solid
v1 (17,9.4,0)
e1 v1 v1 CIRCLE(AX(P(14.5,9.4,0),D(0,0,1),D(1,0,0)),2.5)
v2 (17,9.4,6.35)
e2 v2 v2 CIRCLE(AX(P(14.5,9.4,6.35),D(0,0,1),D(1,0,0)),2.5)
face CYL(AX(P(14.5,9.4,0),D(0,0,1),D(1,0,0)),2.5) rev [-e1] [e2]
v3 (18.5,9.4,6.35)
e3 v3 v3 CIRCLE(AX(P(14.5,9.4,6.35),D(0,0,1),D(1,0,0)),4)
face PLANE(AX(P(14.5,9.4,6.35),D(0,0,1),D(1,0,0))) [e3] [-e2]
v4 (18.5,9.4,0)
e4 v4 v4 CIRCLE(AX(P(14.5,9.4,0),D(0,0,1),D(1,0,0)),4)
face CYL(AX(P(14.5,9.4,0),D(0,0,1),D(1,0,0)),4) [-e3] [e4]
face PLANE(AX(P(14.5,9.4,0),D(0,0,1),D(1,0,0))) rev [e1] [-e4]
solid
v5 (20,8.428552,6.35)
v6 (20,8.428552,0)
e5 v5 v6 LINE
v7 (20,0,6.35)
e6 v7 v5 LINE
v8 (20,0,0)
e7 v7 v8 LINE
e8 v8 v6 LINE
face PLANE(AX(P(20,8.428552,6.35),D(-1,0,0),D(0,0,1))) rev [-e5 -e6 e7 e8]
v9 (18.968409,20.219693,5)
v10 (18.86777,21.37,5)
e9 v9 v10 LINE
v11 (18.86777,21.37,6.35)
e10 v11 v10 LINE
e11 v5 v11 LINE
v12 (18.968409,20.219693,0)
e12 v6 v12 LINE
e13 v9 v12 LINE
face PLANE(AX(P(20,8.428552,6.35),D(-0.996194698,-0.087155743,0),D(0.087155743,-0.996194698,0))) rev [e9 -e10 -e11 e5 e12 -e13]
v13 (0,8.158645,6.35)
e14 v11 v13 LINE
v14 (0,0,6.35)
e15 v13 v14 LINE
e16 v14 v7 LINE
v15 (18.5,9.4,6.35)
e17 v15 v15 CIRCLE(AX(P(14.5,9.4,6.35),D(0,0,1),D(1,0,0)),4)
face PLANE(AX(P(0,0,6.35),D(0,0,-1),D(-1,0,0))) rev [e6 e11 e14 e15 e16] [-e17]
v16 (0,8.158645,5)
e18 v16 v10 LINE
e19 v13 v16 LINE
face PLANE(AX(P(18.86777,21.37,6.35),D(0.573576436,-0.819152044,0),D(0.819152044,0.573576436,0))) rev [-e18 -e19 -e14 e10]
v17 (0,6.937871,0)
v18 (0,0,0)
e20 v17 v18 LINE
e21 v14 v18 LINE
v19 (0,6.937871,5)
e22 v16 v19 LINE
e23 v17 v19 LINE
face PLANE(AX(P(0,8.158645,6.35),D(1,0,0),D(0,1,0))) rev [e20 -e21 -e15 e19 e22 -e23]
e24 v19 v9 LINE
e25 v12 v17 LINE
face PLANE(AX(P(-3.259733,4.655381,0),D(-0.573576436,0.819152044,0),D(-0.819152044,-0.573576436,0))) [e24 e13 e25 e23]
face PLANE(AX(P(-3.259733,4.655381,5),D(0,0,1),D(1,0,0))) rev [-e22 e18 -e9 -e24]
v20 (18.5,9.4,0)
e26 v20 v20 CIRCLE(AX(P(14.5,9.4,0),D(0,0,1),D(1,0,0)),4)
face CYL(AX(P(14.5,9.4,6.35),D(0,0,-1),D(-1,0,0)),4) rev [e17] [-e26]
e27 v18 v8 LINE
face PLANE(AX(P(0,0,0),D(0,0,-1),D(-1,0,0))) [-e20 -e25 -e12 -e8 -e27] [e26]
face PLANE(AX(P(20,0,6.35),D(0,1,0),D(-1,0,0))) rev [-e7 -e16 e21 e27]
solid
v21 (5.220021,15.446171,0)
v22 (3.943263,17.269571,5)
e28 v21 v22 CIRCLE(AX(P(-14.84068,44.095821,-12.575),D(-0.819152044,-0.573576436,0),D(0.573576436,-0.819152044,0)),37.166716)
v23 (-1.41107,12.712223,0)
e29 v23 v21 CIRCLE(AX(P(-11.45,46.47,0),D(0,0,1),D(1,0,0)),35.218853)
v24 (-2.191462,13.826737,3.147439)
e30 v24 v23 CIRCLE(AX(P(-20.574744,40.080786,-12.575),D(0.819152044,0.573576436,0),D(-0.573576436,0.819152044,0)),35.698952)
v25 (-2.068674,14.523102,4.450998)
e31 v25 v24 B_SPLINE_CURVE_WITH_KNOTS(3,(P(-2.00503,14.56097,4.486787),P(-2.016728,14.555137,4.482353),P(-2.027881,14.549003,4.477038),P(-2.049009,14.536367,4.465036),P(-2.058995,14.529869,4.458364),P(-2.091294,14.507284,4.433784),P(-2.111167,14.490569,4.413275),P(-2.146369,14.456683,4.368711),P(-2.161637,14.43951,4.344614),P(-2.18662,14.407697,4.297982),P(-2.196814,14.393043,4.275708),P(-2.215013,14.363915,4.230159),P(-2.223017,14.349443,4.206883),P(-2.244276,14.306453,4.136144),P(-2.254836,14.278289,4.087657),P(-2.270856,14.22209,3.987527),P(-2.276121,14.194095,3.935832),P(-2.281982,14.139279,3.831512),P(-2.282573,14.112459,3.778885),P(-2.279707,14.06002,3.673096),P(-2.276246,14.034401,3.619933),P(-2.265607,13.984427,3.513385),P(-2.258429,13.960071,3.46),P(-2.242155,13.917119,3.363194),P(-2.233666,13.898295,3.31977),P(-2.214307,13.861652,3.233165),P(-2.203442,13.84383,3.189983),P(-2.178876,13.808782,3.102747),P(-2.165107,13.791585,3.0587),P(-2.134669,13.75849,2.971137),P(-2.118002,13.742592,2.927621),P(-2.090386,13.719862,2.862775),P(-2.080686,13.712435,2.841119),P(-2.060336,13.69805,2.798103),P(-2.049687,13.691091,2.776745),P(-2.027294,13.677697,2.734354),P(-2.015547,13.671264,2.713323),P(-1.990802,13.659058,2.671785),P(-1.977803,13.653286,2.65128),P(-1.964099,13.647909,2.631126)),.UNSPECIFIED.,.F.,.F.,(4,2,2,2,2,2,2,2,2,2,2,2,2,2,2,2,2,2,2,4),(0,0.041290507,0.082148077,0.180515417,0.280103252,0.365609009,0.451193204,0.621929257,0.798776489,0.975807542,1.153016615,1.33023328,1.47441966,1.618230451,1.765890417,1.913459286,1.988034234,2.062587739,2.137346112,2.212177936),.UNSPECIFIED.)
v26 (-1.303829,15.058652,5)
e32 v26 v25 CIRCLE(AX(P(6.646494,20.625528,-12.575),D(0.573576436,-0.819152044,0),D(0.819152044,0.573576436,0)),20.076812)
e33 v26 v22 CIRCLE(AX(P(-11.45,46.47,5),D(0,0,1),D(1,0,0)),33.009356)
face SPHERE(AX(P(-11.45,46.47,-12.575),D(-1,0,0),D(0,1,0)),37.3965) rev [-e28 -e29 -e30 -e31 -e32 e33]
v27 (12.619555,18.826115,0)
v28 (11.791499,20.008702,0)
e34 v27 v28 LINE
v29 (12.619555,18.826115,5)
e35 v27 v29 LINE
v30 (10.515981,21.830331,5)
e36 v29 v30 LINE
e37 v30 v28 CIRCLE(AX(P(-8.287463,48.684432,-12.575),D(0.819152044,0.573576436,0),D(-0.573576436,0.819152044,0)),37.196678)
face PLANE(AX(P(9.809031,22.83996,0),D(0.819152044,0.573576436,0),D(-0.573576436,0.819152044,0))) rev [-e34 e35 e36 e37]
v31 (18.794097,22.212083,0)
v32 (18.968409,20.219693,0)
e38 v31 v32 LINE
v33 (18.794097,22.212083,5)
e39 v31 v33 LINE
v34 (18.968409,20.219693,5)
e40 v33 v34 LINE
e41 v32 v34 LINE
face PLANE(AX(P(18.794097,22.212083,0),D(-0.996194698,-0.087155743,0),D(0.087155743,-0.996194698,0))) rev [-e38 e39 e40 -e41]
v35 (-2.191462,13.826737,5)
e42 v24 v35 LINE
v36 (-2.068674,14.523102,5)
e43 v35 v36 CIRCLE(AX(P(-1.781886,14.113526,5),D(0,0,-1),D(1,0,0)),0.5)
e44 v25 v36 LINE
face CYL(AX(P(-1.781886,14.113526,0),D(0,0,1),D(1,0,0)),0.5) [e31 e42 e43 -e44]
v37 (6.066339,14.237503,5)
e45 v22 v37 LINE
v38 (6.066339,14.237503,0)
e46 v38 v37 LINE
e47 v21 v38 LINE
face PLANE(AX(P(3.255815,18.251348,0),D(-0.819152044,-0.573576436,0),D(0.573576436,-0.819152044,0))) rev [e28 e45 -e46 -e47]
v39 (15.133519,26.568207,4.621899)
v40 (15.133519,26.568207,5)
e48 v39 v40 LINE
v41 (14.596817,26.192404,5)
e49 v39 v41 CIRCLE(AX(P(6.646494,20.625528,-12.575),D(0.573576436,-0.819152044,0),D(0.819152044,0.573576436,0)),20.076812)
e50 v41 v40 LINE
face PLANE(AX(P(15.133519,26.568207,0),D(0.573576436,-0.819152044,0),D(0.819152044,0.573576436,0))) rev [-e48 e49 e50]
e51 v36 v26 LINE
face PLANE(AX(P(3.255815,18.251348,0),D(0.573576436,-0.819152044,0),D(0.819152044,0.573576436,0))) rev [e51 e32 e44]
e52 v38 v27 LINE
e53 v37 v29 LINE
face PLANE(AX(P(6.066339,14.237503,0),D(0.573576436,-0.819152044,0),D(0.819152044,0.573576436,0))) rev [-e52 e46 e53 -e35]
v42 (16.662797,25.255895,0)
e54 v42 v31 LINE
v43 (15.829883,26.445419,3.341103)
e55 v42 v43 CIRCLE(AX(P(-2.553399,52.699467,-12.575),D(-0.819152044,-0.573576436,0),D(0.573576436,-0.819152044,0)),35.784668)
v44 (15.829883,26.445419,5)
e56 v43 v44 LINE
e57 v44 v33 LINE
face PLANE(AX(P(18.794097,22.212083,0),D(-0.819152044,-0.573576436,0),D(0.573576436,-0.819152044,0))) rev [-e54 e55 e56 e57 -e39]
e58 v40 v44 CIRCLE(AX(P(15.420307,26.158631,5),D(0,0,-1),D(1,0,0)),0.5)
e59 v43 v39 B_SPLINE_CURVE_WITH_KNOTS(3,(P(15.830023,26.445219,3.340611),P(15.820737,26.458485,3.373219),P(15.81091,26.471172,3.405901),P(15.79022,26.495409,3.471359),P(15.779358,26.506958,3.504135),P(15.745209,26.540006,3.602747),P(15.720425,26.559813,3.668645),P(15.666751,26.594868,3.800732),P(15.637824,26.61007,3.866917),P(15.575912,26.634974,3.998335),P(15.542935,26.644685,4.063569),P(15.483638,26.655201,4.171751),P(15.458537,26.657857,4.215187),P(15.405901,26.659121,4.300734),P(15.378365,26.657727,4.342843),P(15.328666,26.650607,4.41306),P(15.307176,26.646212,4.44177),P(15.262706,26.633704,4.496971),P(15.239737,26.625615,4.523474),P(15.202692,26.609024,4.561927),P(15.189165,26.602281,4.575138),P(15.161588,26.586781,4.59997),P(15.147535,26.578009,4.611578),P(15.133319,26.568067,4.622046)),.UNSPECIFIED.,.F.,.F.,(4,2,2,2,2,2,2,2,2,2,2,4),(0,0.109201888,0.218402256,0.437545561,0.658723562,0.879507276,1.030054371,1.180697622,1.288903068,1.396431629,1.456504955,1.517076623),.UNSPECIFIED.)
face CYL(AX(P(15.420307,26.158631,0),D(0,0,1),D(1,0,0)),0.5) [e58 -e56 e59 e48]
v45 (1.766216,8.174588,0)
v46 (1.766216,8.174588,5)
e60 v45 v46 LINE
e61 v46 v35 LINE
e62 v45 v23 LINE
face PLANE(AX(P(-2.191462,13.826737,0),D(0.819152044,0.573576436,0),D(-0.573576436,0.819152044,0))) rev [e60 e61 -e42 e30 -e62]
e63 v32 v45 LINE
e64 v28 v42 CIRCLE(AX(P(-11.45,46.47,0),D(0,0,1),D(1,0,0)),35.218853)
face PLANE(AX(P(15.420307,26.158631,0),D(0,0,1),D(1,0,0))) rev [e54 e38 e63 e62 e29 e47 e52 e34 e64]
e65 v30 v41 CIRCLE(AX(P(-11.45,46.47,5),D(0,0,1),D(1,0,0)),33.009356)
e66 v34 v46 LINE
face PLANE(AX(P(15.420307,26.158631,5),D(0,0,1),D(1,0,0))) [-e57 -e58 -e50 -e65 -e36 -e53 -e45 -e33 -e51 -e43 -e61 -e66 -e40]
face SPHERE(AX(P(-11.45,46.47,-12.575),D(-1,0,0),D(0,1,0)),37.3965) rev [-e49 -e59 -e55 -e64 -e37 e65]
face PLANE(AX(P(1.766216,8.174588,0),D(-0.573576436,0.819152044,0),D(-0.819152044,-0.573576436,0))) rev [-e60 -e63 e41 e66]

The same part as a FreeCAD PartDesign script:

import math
import FreeCAD as App
import Part
import Sketcher

V = App.Vector
Q = App.Units.Quantity


def add_polygon(sketch, points):
    """Adds a closed chain of lines whose ends are joined by coincident constraints."""
    first, n = sketch.GeometryCount, len(points)
    for a, b in zip(points, points[1:] + points[:1]):
        sketch.addGeometry(Part.LineSegment(App.Vector(*a, 0), App.Vector(*b, 0)), False)
    for i in range(n):
        sketch.addConstraint(Sketcher.Constraint("Coincident", first + i, 2, first + (i + 1) % n, 1))

doc = App.newDocument("Part")
body = doc.addObject("PartDesign::Body", "Body")

# Sketch on XY plane
sketch1 = body.newObject("Sketcher::SketchObject", "Sketch")
sketch1.AttachmentSupport = (doc.getObject("XY_Plane"), [""])
sketch1.MapMode = "FlatFace"
add_polygon(sketch1, [(20, 8.4), (18.9, 21.4), (0, 8.2), (0, 0), (20, 0)])  # lines 0-4
sketch1.addGeometry(Part.Circle(V(14.5, 9.4, 0), V(0, 0, 1), 4), False)  # 5
sketch1.addConstraint([
    Sketcher.Constraint("Vertical", 2),
    Sketcher.Constraint("Horizontal", 3),
    Sketcher.Constraint("Vertical", 4),
    Sketcher.Constraint("Coincident", 2, 2, -1, 1),
    Sketcher.Constraint("Diameter", 5, 8.0),
    Sketcher.Constraint("DistanceX", 3, 1, 3, 2, 20.0),
    Sketcher.Constraint("Angle", 0, Q("95 deg")),
    Sketcher.Constraint("Angle", 1, Q("-145 deg")),
    Sketcher.Constraint("DistanceX", -1, 1, 5, 3, 14.5),
    Sketcher.Constraint("DistanceY", -1, 1, 5, 3, 9.4),
    Sketcher.Constraint("DistanceY", -1, 1, 0, 2, 21.37),
    Sketcher.Constraint("Distance", 0, 12.990882),
])
pad1 = body.newObject("PartDesign::Pad", "Pad")
pad1.Profile = sketch1
pad1.Length = 6.35

# Sketch on an angled plane
sketch2 = body.newObject("Sketcher::SketchObject", "Sketch001")
sketch2.Placement = App.Placement(V(-3.833309, 5.474533, 0), App.Rotation(V(0.819152044, 0.573576436, 0), V(0, 0, -0.999999999), V(-0.573576436, 0.819152044, 0), "ZXY"))
add_polygon(sketch2, [(0, 0), (0, -5), (27.7, -5), (27.7, 0)])  # lines 0-3
sketch2.addConstraint([
    Sketcher.Constraint("Vertical", 0),
    Sketcher.Constraint("Horizontal", 1),
    Sketcher.Constraint("Vertical", 2),
    Sketcher.Constraint("Horizontal", 3),
    Sketcher.Constraint("Coincident", 3, 2, -1, 1),
    Sketcher.Constraint("DistanceY", 0, 2, 0, 1, 5.0),
    Sketcher.Constraint("DistanceX", 1, 1, 1, 2, 27.712901),
])
pocket1 = body.newObject("PartDesign::Pocket", "Pocket")
pocket1.Profile = sketch2
pocket1.Length = 1
body2 = doc.addObject("PartDesign::Body", "Body001")

# Sketch on XY plane
sketch3 = body2.newObject("Sketcher::SketchObject", "Sketch002")
sketch3.AttachmentSupport = (doc.getObject("XY_Plane001"), [""])
sketch3.MapMode = "FlatFace"
sketch3.AttachmentOffset = App.Placement(V(0, 0, 5), App.Rotation())
sketch3.addGeometry([
    Part.LineSegment(V(18.79, 22.21, 0), V(18.97, 20.22, 0)),  # 0
    Part.LineSegment(V(18.97, 20.22, 0), V(1.77, 8.17, 0)),  # 1
    Part.LineSegment(V(1.77, 8.17, 0), V(-2.19, 13.83, 0)),  # 2
    Part.ArcOfCircle(Part.Circle(V(-1.78, 14.11, 0), V(0, 0, 1), 0.5), math.radians(125), math.radians(215)),  # 3
    Part.LineSegment(V(-2.07, 14.52, 0), V(3.26, 18.25, 0)),  # 4
    Part.LineSegment(V(3.26, 18.25, 0), V(6.07, 14.24, 0)),  # 5
    Part.LineSegment(V(6.07, 14.24, 0), V(12.62, 18.83, 0)),  # 6
    Part.LineSegment(V(12.62, 18.83, 0), V(9.81, 22.84, 0)),  # 7
    Part.LineSegment(V(9.81, 22.84, 0), V(15.13, 26.57, 0)),  # 8
    Part.ArcOfCircle(Part.Circle(V(15.42, 26.16, 0), V(0, 0, 1), 0.5), math.radians(35), math.radians(125)),  # 9
    Part.LineSegment(V(15.83, 26.45, 0), V(18.79, 22.21, 0)),  # 10
], False)
sketch3.addConstraint([
    Sketcher.Constraint("Coincident", 0, 2, 1, 1),
    Sketcher.Constraint("Coincident", 1, 2, 2, 1),
    Sketcher.Constraint("Tangent", 2, 2, 3, 2),
    Sketcher.Constraint("Tangent", 3, 1, 4, 1),
    Sketcher.Constraint("Coincident", 4, 2, 5, 1),
    Sketcher.Constraint("Coincident", 5, 2, 6, 1),
    Sketcher.Constraint("Coincident", 6, 2, 7, 1),
    Sketcher.Constraint("Coincident", 7, 2, 8, 1),
    Sketcher.Constraint("Tangent", 8, 2, 9, 2),
    Sketcher.Constraint("Tangent", 9, 1, 10, 1),
    Sketcher.Constraint("Coincident", 10, 2, 0, 1),
    Sketcher.Constraint("Equal", 3, 9),
    Sketcher.Constraint("Perpendicular", 1, 2),
    Sketcher.Constraint("Perpendicular", 2, 4),
    Sketcher.Constraint("Perpendicular", 4, 5),
    Sketcher.Constraint("Perpendicular", 5, 6),
    Sketcher.Constraint("Perpendicular", 6, 7),
    Sketcher.Constraint("Perpendicular", 7, 8),
    Sketcher.Constraint("Perpendicular", 8, 10),
    Sketcher.Constraint("Equal", 5, 7),
    Sketcher.Constraint("Equal", 4, 8),
    Sketcher.Constraint("Radius", 3, 0.5),
    Sketcher.Constraint("Angle", 0, Q("-85 deg")),
    Sketcher.Constraint("Angle", 1, Q("-145 deg")),
    Sketcher.Constraint("Distance", 0, 2.0),
    Sketcher.Constraint("Distance", 1, 21.0),
    Sketcher.Constraint("Distance", 6, 8.0),
    Sketcher.Constraint("Distance", 2, 6.9),
    Sketcher.Constraint("Distance", 5, 4.9),
    Sketcher.Constraint("DistanceY", -1, 1, 3, 1, 14.523102),
    Sketcher.Constraint("DistanceX", -1, 1, 0, 2, 18.968409),
])
pad2 = body2.newObject("PartDesign::Pad", "Pad001")
pad2.Profile = sketch3
pad2.Length = 5
pad2.Reversed = True

# Sketch on XY plane
sketch4 = body2.newObject("Sketcher::SketchObject", "Sketch003")
sketch4.AttachmentSupport = (doc.getObject("XY_Plane001"), [""])
sketch4.MapMode = "FlatFace"
sketch4.AttachmentOffset = App.Placement(V(0, 0, -12.575), App.Rotation())
sketch4.addGeometry([
    Part.LineSegment(V(26, 46, 0), V(-49, 46, 0)),
    Part.ArcOfCircle(Part.Circle(V(-11, 46, 0), V(0, 0, 1), 37), math.radians(180), math.radians(360)),
], False)
sketch4.addGeometry(Part.LineSegment(V(-49, 46, 0), V(26, 46, 0)), True)  # axis
sketch4.addConstraint([
    Sketcher.Constraint("Coincident", 0, 1, 1, 2),
    Sketcher.Constraint("Coincident", 1, 1, 0, 2),
    Sketcher.Constraint("Horizontal", 0),
    Sketcher.Constraint("Horizontal", 2),
    Sketcher.Constraint("Coincident", 2, 1, 1, 1),
    Sketcher.Constraint("Horizontal", 1, 3, 0, 1),
    Sketcher.Constraint("Equal", 0, 2),
    Sketcher.Constraint("Radius", 1, 37.3965),
    Sketcher.Constraint("DistanceX", 1, 3, -1, 1, 11.45),
    Sketcher.Constraint("DistanceY", -1, 1, 1, 3, 46.47),
])
groove = body2.newObject("PartDesign::Groove", "Groove")
groove.Profile = sketch4
groove.ReferenceAxis = (sketch4, ["Axis0"])
groove.Angle = 360
body3 = doc.addObject("PartDesign::Body", "Body002")

# Sketch on XY plane
sketch5 = body3.newObject("Sketcher::SketchObject", "Sketch004")
sketch5.AttachmentSupport = (doc.getObject("XY_Plane002"), [""])
sketch5.MapMode = "FlatFace"
sketch5.AttachmentOffset = App.Placement(V(0, 0, 6.35), App.Rotation())
sketch5.addGeometry([
    Part.Circle(V(14.5, 9.4, 0), V(0, 0, 1), 4),
    Part.Circle(V(14.5, 9.4, 0), V(0, 0, 1), 2.5),
], False)
sketch5.addConstraint([
    Sketcher.Constraint("Coincident", 1, 3, 0, 3),
    Sketcher.Constraint("Diameter", 0, 8.0),
    Sketcher.Constraint("Diameter", 1, 5.0),
    Sketcher.Constraint("DistanceX", -1, 1, 0, 3, 14.5),
    Sketcher.Constraint("DistanceY", -1, 1, 0, 3, 9.4),
])
pad3 = body3.newObject("PartDesign::Pad", "Pad002")
pad3.Profile = sketch5
pad3.Length = 6.35
pad3.Reversed = True

doc.recompute()
